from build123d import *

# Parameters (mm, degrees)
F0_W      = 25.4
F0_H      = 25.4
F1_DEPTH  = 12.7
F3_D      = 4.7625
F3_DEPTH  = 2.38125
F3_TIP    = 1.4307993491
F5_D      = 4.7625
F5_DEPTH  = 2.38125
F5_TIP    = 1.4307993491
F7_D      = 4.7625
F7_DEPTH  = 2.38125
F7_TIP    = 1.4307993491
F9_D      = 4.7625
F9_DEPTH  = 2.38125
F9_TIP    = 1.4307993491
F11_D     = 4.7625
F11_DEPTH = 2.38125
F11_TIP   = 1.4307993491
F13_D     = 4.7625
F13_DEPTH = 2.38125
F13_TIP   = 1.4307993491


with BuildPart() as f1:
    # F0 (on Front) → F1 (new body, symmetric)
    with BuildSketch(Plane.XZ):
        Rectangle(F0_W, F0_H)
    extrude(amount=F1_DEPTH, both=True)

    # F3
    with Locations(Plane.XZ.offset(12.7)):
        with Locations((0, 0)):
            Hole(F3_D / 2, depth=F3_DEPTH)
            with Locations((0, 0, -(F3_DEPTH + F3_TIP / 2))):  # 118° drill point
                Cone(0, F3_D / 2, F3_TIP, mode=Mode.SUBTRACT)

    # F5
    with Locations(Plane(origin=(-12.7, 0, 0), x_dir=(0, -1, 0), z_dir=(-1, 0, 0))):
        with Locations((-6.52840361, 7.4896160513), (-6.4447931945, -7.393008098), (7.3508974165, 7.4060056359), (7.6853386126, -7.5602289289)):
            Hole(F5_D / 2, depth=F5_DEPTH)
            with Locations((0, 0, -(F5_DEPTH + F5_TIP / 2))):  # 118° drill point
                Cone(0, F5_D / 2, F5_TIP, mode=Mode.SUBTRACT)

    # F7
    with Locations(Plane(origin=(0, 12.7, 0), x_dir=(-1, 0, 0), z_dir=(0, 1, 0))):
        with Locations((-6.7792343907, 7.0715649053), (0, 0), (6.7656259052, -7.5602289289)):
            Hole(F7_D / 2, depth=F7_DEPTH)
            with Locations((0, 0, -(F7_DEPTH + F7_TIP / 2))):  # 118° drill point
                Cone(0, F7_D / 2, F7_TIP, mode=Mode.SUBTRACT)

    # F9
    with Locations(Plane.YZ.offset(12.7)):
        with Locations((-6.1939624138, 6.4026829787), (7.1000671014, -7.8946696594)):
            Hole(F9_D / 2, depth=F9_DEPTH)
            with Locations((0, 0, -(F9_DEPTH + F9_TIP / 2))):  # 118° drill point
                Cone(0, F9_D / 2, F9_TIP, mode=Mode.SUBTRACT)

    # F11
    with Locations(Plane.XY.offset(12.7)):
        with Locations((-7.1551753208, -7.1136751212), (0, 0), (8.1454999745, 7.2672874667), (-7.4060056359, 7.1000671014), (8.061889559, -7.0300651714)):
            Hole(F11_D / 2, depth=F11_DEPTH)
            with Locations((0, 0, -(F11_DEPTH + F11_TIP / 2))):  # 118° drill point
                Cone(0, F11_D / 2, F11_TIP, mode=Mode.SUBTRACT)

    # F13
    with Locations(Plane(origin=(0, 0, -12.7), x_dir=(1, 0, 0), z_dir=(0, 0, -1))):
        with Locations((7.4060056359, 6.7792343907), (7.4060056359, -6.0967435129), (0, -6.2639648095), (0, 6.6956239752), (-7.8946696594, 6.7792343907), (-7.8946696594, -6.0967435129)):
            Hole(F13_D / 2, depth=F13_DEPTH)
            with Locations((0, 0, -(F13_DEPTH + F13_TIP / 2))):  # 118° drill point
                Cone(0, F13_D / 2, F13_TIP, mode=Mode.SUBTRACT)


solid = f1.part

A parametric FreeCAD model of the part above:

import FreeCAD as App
import Part
import Sketcher
Q = App.Units.Quantity


def add_polygon(sketch, points):
    """Adds a closed chain of lines whose ends are joined by coincident constraints."""
    first, n = sketch.GeometryCount, len(points)
    for a, b in zip(points, points[1:] + points[:1]):
        sketch.addGeometry(Part.LineSegment(App.Vector(*a, 0), App.Vector(*b, 0)), False)
    for i in range(n):
        sketch.addConstraint(Sketcher.Constraint("Coincident", first + i, 2, first + (i + 1) % n, 1))

doc = App.newDocument("Part")
body = doc.addObject("PartDesign::Body", "Body")

sketch1 = doc.addObject("Sketcher::SketchObject", "Sketch")
body.addObject(sketch1)
sketch1.AttachmentSupport = (doc.XZ_Plane, [""])
sketch1.MapMode = "FlatFace"
add_polygon(sketch1, [(-13, 13), (-13, -13), (13, -13), (13, 13)])
sketch1.addConstraint([
    Sketcher.Constraint("Vertical", 0),
    Sketcher.Constraint("Horizontal", 1),
    Sketcher.Constraint("Vertical", 2),
    Sketcher.Constraint("Horizontal", 3),
    Sketcher.Constraint("Symmetric", 0, 2, 2, 2, -1, 1),
    Sketcher.Constraint("Equal", 3, 0),
    Sketcher.Constraint("DistanceX", 1, 1, 1, 2, Q("1 in")),
])
pad1 = doc.addObject("PartDesign::Pad", "Pad")
body.addObject(pad1)
pad1.Profile = sketch1
pad1.Length = Q("1 in")
pad1.Midplane = True

sketch2 = doc.addObject("Sketcher::SketchObject", "Sketch001")
body.addObject(sketch2)
sketch2.AttachmentSupport = (doc.XZ_Plane, [""])
sketch2.MapMode = "FlatFace"
sketch2.AttachmentOffset = App.Placement(App.Vector(0, 0, 0.5 * 25.4), App.Rotation())
sketch2.addGeometry(Part.Circle(App.Vector(0, 0, 0), App.Vector(0, 0, 1), 2.4), False)
sketch2.addConstraint([
    Sketcher.Constraint("Coincident", 0, 3, -1, 1),
    Sketcher.Constraint("Diameter", 0, Q("0.1875 in")),
])
doc.recompute()
hole = doc.addObject("PartDesign::Hole", "Hole")
body.addObject(hole)
hole.Profile = sketch2
hole.ThreadType = "None"
hole.Diameter = Q("0.1875 in")
hole.DepthType = "Dimension"
hole.Depth = Q("0.09375 in")
hole.DrillPoint = "Angled"
hole.DrillPointAngle = 118

sketch3 = doc.addObject("Sketcher::SketchObject", "Sketch002")
body.addObject(sketch3)
sketch3.AttachmentSupport = (doc.YZ_Plane, [""])
sketch3.MapMode = "FlatFace"
sketch3.AttachmentOffset = App.Placement(App.Vector(0, 0, -0.5 * 25.4), App.Rotation())
sketch3.addGeometry([
    Part.Circle(App.Vector(6.5, 7.5, 0), App.Vector(0, 0, 1), 2.4),
    Part.Circle(App.Vector(6.4, -7.4, 0), App.Vector(0, 0, 1), 2.4),
    Part.Circle(App.Vector(-7.4, 7.4, 0), App.Vector(0, 0, 1), 2.4),
    Part.Circle(App.Vector(-7.7, -7.6, 0), App.Vector(0, 0, 1), 2.4),
], False)
sketch3.addConstraint([
    Sketcher.Constraint("Equal", 0, 1),
    Sketcher.Constraint("Equal", 1, 2),
    Sketcher.Constraint("Equal", 2, 3),
    Sketcher.Constraint("Diameter", 0, Q("0.1875 in")),
    Sketcher.Constraint("DistanceX", 2, 3, 0, 3, 13.879301),
    Sketcher.Constraint("DistanceY", 1, 3, -1, 1, 7.393008),
    Sketcher.Constraint("DistanceX", 3, 3, -1, 1, 7.685339),
    Sketcher.Constraint("DistanceY", 3, 3, -1, 1, 7.560229),
    Sketcher.Constraint("DistanceX", 1, 3, 0, 3, 0.08361),
    Sketcher.Constraint("DistanceY", 2, 3, 0, 3, 0.08361),
    Sketcher.Constraint("DistanceX", 3, 3, 1, 3, 14.130132),
    Sketcher.Constraint("DistanceY", -1, 1, 0, 3, 7.489616),
])
doc.recompute()
hole2 = doc.addObject("PartDesign::Hole", "Hole001")
body.addObject(hole2)
hole2.Profile = sketch3
hole2.ThreadType = "None"
hole2.Diameter = Q("0.1875 in")
hole2.DepthType = "Dimension"
hole2.Depth = Q("0.09375 in")
hole2.DrillPoint = "Angled"
hole2.DrillPointAngle = 118
hole2.Reversed = True

sketch4 = doc.addObject("Sketcher::SketchObject", "Sketch003")
body.addObject(sketch4)
sketch4.AttachmentSupport = (doc.XZ_Plane, [""])
sketch4.MapMode = "FlatFace"
sketch4.AttachmentOffset = App.Placement(App.Vector(0, 0, -0.5 * 25.4), App.Rotation())
sketch4.addGeometry([
    Part.Circle(App.Vector(6.8, 7.1, 0), App.Vector(0, 0, 1), 2.4),
    Part.Circle(App.Vector(0, 0, 0), App.Vector(0, 0, 1), 2.4),
    Part.Circle(App.Vector(-6.8, -7.6, 0), App.Vector(0, 0, 1), 2.4),
], False)
sketch4.addConstraint([
    Sketcher.Constraint("Coincident", 1, 3, -1, 1),
    Sketcher.Constraint("Equal", 0, 1),
    Sketcher.Constraint("Equal", 1, 2),
    Sketcher.Constraint("Diameter", 0, Q("0.1875 in")),
    Sketcher.Constraint("DistanceY", 2, 3, -1, 1, 7.560229),
    Sketcher.Constraint("DistanceX", 2, 3, 0, 3, 13.54486),
    Sketcher.Constraint("DistanceX", -1, 1, 0, 3, 6.779234),
    Sketcher.Constraint("DistanceY", -1, 1, 0, 3, 7.071565),
])
doc.recompute()
hole3 = doc.addObject("PartDesign::Hole", "Hole002")
body.addObject(hole3)
hole3.Profile = sketch4
hole3.ThreadType = "None"
hole3.Diameter = Q("0.1875 in")
hole3.DepthType = "Dimension"
hole3.Depth = Q("0.09375 in")
hole3.DrillPoint = "Angled"
hole3.DrillPointAngle = 118
hole3.Reversed = True

sketch5 = doc.addObject("Sketcher::SketchObject", "Sketch004")
body.addObject(sketch5)
sketch5.AttachmentSupport = (doc.YZ_Plane, [""])
sketch5.MapMode = "FlatFace"
sketch5.AttachmentOffset = App.Placement(App.Vector(0, 0, 0.5 * 25.4), App.Rotation())
sketch5.addGeometry([
    Part.Circle(App.Vector(-6.2, 6.4, 0), App.Vector(0, 0, 1), 2.4),
    Part.Circle(App.Vector(7.1, -7.9, 0), App.Vector(0, 0, 1), 2.4),
], False)
sketch5.addConstraint([
    Sketcher.Constraint("Equal", 0, 1),
    Sketcher.Constraint("Diameter", 0, Q("0.1875 in")),
    Sketcher.Constraint("DistanceY", 1, 3, -1, 1, 7.89467),
    Sketcher.Constraint("DistanceX", 0, 3, 1, 3, 13.29403),
    Sketcher.Constraint("DistanceX", 0, 3, -1, 1, 6.193962),
    Sketcher.Constraint("DistanceY", -1, 1, 0, 3, 6.402683),
])
doc.recompute()
hole4 = doc.addObject("PartDesign::Hole", "Hole003")
body.addObject(hole4)
hole4.Profile = sketch5
hole4.ThreadType = "None"
hole4.Diameter = Q("0.1875 in")
hole4.DepthType = "Dimension"
hole4.Depth = Q("0.09375 in")
hole4.DrillPoint = "Angled"
hole4.DrillPointAngle = 118

sketch6 = doc.addObject("Sketcher::SketchObject", "Sketch005")
body.addObject(sketch6)
sketch6.AttachmentSupport = (doc.XY_Plane, [""])
sketch6.MapMode = "FlatFace"
sketch6.AttachmentOffset = App.Placement(App.Vector(0, 0, 0.5 * 25.4), App.Rotation())
sketch6.addGeometry([
    Part.Circle(App.Vector(-7.2, -7.1, 0), App.Vector(0, 0, 1), 2.4),
    Part.Circle(App.Vector(0, 0, 0), App.Vector(0, 0, 1), 2.4),
    Part.Circle(App.Vector(8.1, 7.3, 0), App.Vector(0, 0, 1), 2.4),
    Part.Circle(App.Vector(-7.4, 7.1, 0), App.Vector(0, 0, 1), 2.4),
    Part.Circle(App.Vector(8.1, -7, 0), App.Vector(0, 0, 1), 2.4),
], False)
sketch6.addConstraint([
    Sketcher.Constraint("Coincident", 1, 3, -1, 1),
    Sketcher.Constraint("Equal", 0, 1),
    Sketcher.Constraint("Equal", 1, 2),
    Sketcher.Constraint("Equal", 2, 3),
    Sketcher.Constraint("Equal", 3, 4),
    Sketcher.Constraint("Diameter", 0, Q("0.1875 in")),
    Sketcher.Constraint("DistanceX", 0, 3, -1, 1, Q("0.2816998 in")),
    Sketcher.Constraint("DistanceX", -1, 1, 2, 3, 8.1455),
    Sketcher.Constraint("DistanceX", -1, 1, 4, 3, 8.06189),
    Sketcher.Constraint("DistanceX", 3, 3, 0, 3, 0.25083),
    Sketcher.Constraint("DistanceY", 3, 3, 2, 3, 0.16722),
    Sketcher.Constraint("DistanceY", 0, 3, 4, 3, 0.08361),
    Sketcher.Constraint("DistanceY", 0, 3, -1, 1, 7.113675),
    Sketcher.Constraint("DistanceY", -1, 1, 2, 3, 7.267287),
])
doc.recompute()
hole5 = doc.addObject("PartDesign::Hole", "Hole004")
body.addObject(hole5)
hole5.Profile = sketch6
hole5.ThreadType = "None"
hole5.Diameter = Q("0.1875 in")
hole5.DepthType = "Dimension"
hole5.Depth = Q("0.09375 in")
hole5.DrillPoint = "Angled"
hole5.DrillPointAngle = 118

sketch7 = doc.addObject("Sketcher::SketchObject", "Sketch006")
body.addObject(sketch7)
sketch7.AttachmentSupport = (doc.XY_Plane, [""])
sketch7.MapMode = "FlatFace"
sketch7.AttachmentOffset = App.Placement(App.Vector(0, 0, -0.5 * 25.4), App.Rotation())
sketch7.addGeometry([
    Part.Circle(App.Vector(7.4, -6.8, 0), App.Vector(0, 0, 1), 2.4),
    Part.Circle(App.Vector(7.4, 6.1, 0), App.Vector(0, 0, 1), 2.4),
    Part.Circle(App.Vector(0, 6.3, 0), App.Vector(0, 0, 1), 2.4),
    Part.Circle(App.Vector(0, -6.7, 0), App.Vector(0, 0, 1), 2.4),
    Part.Circle(App.Vector(-7.9, -6.8, 0), App.Vector(0, 0, 1), 2.4),
    Part.Circle(App.Vector(-7.9, 6.1, 0), App.Vector(0, 0, 1), 2.4),
], False)
sketch7.addConstraint([
    Sketcher.Constraint("Equal", 0, 1),
    Sketcher.Constraint("Equal", 1, 2),
    Sketcher.Constraint("Equal", 2, 3),
    Sketcher.Constraint("Equal", 3, 4),
    Sketcher.Constraint("Equal", 4, 5),
    Sketcher.Constraint("PointOnObject", 2, 3, -2),
    Sketcher.Constraint("PointOnObject", 3, 3, -2),
    Sketcher.Constraint("Horizontal", 0, 3, 4, 3),
    Sketcher.Constraint("Horizontal", 1, 3, 5, 3),
    Sketcher.Constraint("Vertical", 0, 3, 1, 3),
    Sketcher.Constraint("Vertical", 4, 3, 5, 3),
    Sketcher.Constraint("Diameter", 0, Q("0.1875 in")),
    Sketcher.Constraint("DistanceY", 0, 3, 2, 3, 13.043199),
    Sketcher.Constraint("DistanceX", 4, 3, -1, 1, 7.89467),
    Sketcher.Constraint("DistanceY", 1, 3, 2, 3, 0.167221),
    Sketcher.Constraint("DistanceY", 0, 3, 3, 3, 0.08361),
    Sketcher.Constraint("DistanceX", -1, 1, 0, 3, 7.406006),
    Sketcher.Constraint("DistanceY", 0, 3, -1, 1, 6.779234),
])
doc.recompute()
hole6 = doc.addObject("PartDesign::Hole", "Hole005")
body.addObject(hole6)
hole6.Profile = sketch7
hole6.ThreadType = "None"
hole6.Diameter = Q("0.1875 in")
hole6.DepthType = "Dimension"
hole6.Depth = Q("0.09375 in")
hole6.DrillPoint = "Angled"
hole6.DrillPointAngle = 118
hole6.Reversed = True

doc.recompute()
